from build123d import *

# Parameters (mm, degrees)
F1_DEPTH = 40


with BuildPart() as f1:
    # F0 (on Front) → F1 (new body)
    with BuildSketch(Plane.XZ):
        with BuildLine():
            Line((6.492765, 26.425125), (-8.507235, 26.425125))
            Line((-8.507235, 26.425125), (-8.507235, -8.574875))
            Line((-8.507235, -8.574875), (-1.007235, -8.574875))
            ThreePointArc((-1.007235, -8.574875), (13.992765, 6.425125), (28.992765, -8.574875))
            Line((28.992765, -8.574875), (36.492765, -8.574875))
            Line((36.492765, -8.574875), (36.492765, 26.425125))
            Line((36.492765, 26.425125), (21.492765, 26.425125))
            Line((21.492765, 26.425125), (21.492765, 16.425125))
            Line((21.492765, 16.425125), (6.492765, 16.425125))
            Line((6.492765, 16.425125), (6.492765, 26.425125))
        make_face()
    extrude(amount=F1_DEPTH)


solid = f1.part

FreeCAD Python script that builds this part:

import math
import FreeCAD as App
import Part
import Sketcher
Q = App.Units.Quantity

doc = App.newDocument("Part")
body = doc.addObject("PartDesign::Body", "Body")

sketch1 = doc.addObject("Sketcher::SketchObject", "Sketch")
body.addObject(sketch1)
sketch1.AttachmentSupport = (doc.XZ_Plane, [""])
sketch1.MapMode = "FlatFace"
sketch1.addGeometry([
    Part.LineSegment(App.Vector(6, 26, 0), App.Vector(-9, 26, 0)),
    Part.LineSegment(App.Vector(-9, 26, 0), App.Vector(-9, -9, 0)),
    Part.LineSegment(App.Vector(-9, -9, 0), App.Vector(-1, -9, 0)),
    Part.ArcOfCircle(Part.Circle(App.Vector(14, -9, 0), App.Vector(0, 0, 1), 15), math.radians(0), math.radians(180)),
    Part.LineSegment(App.Vector(29, -9, 0), App.Vector(36, -9, 0)),
    Part.LineSegment(App.Vector(36, -9, 0), App.Vector(36, 26, 0)),
    Part.LineSegment(App.Vector(36, 26, 0), App.Vector(21, 26, 0)),
    Part.LineSegment(App.Vector(21, 26, 0), App.Vector(21, 16, 0)),
    Part.LineSegment(App.Vector(21, 16, 0), App.Vector(6, 16, 0)),
    Part.LineSegment(App.Vector(6, 16, 0), App.Vector(6, 26, 0)),
], False)
sketch1.addConstraint([
    Sketcher.Constraint("Coincident", 0, 2, 1, 1),
    Sketcher.Constraint("Coincident", 1, 2, 2, 1),
    Sketcher.Constraint("Coincident", 2, 2, 3, 2),
    Sketcher.Constraint("Coincident", 3, 1, 4, 1),
    Sketcher.Constraint("Coincident", 4, 2, 5, 1),
    Sketcher.Constraint("Coincident", 5, 2, 6, 1),
    Sketcher.Constraint("Coincident", 6, 2, 7, 1),
    Sketcher.Constraint("Coincident", 7, 2, 8, 1),
    Sketcher.Constraint("Coincident", 8, 2, 9, 1),
    Sketcher.Constraint("Coincident", 9, 2, 0, 1),
    Sketcher.Constraint("Horizontal", 0),
    Sketcher.Constraint("Vertical", 1),
    Sketcher.Constraint("Horizontal", 2),
    Sketcher.Constraint("Horizontal", 4),
    Sketcher.Constraint("Vertical", 5),
    Sketcher.Constraint("Horizontal", 6),
    Sketcher.Constraint("Vertical", 7),
    Sketcher.Constraint("Horizontal", 8),
    Sketcher.Constraint("Vertical", 9),
    Sketcher.Constraint("Horizontal", 3, 3, 1, 2),
    Sketcher.Constraint("Horizontal", 2, 2, 3, 1),
    Sketcher.Constraint("Horizontal", 0, 2, 5, 2),
    Sketcher.Constraint("Equal", 2, 4),
    Sketcher.Constraint("Equal", 0, 6),
    Sketcher.Constraint("Equal", 6, 8),
    Sketcher.Constraint("Radius", 3, Q("15 mm")),
    Sketcher.Constraint("DistanceX", 0, 2, 0, 1, Q("15 mm")),
    Sketcher.Constraint("DistanceY", 1, 2, 1, 1, Q("35 mm")),
    Sketcher.Constraint("DistanceY", 7, 2, 7, 1, Q("10 mm")),
    Sketcher.Constraint("DistanceX", -1, 1, 3, 3, Q("13.992765 mm")),
    Sketcher.Constraint("DistanceY", 3, 3, -1, 1, Q("8.574875 mm")),
])
pad1 = doc.addObject("PartDesign::Pad", "Pad")
body.addObject(pad1)
pad1.Profile = sketch1
pad1.Length = 40

doc.recompute()
